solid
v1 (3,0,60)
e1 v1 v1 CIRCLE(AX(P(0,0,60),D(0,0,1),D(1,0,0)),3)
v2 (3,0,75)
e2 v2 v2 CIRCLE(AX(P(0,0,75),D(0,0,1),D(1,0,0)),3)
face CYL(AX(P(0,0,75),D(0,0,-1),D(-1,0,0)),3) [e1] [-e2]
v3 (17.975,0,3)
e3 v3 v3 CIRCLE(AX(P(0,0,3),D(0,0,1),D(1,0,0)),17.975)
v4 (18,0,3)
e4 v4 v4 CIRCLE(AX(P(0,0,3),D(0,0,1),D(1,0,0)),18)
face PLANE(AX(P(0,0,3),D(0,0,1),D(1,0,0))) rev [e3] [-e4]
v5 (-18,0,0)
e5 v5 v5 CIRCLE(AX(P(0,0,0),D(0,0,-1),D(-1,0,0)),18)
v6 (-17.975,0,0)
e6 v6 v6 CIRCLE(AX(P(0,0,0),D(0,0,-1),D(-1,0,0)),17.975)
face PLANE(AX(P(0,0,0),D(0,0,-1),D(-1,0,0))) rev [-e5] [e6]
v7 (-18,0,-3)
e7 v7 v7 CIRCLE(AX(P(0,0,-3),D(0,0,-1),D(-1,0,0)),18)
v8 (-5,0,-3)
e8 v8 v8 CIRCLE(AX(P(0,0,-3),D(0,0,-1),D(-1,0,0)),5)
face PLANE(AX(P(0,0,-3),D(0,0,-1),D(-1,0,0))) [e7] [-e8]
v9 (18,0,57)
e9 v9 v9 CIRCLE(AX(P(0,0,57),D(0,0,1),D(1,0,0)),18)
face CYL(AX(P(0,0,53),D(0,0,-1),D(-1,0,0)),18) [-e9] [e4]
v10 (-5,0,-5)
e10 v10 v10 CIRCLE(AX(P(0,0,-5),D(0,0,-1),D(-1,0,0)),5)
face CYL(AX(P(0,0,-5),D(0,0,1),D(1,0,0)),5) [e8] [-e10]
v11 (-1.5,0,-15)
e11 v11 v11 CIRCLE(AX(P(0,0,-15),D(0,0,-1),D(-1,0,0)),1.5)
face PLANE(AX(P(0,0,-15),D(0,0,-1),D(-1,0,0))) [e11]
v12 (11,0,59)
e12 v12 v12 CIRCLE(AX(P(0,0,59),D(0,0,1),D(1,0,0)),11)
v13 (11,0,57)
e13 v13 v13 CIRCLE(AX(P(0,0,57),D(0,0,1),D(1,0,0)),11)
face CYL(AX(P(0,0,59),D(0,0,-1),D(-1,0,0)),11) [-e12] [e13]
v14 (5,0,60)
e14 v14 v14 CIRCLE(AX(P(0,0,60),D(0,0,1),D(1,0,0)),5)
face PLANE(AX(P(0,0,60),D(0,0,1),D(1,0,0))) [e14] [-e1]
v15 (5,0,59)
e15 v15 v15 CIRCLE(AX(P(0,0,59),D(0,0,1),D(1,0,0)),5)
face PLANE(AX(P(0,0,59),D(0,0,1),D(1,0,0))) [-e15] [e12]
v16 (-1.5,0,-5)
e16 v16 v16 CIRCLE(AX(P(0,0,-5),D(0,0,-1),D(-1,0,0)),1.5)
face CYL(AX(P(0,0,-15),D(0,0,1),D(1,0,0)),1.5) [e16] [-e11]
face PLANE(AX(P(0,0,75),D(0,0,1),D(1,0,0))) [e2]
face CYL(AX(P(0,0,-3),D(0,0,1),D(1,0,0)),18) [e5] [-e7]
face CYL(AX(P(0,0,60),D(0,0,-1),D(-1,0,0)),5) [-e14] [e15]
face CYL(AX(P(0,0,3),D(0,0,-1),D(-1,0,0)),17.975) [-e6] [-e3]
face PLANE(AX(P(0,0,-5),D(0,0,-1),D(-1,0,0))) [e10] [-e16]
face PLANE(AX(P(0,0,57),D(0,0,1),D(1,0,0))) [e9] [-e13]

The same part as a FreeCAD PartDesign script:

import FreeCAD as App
import Part
import Sketcher

doc = App.newDocument("Part")
params = doc.addObject("Spreadsheet::Sheet", "Params")
for row, (alias, value) in enumerate([
    ("sketch1_diameter", "35.95 mm"),
    ("pad1_length", "3 mm"),
    ("sketch2_diameter", "36 mm"),
    ("pad2_length", "50 mm"),
    ("sketch3_diameter", "36 mm"),
    ("pad3_length", "4 mm"),
    ("sketch4_diameter", "22 mm"),
    ("pad4_length", "2 mm"),
    ("sketch5_diameter", "10 mm"),
    ("pad5_length", "1 mm"),
    ("sketch6_diameter", "6 mm"),
    ("pad6_length", "15 mm"),
    ("sketch7_diameter", "36 mm"),
    ("pad7_length", "3 mm"),
    ("sketch8_diameter", "10 mm"),
    ("pad8_length", "2 mm"),
    ("sketch9_diameter", "3 mm"),
    ("pad9_length", "10 mm"),
], start=1):
    params.set(f"A{row}", alias)
    params.set(f"B{row}", "=" + value)
    params.setAlias(f"B{row}", alias)

body = doc.addObject("PartDesign::Body", "Body")

sketch1 = body.newObject("Sketcher::SketchObject", "Sketch")
sketch1.AttachmentSupport = (doc.getObject("XY_Plane"), [""])
sketch1.MapMode = "FlatFace"
sketch1.addGeometry(Part.Circle(App.Vector(0, 0, 0), App.Vector(0, 0, 1), 18), False)
sketch1.addConstraint(Sketcher.Constraint("Coincident", 0, 3, -1, 1))
sketch1.addConstraint(Sketcher.Constraint("Diameter", 0, 35.95))
sketch1.setExpression("Constraints[1]", "Params.sketch1_diameter")
pad1 = body.newObject("PartDesign::Pad", "Pad")
pad1.Profile = sketch1
pad1.setExpression("Length", "Params.pad1_length")

sketch2 = body.newObject("Sketcher::SketchObject", "Sketch001")
sketch2.AttachmentSupport = (doc.getObject("XY_Plane"), [""])
sketch2.MapMode = "FlatFace"
sketch2.AttachmentOffset = App.Placement(App.Vector(0, 0, 3), App.Rotation())
sketch2.addGeometry(Part.Circle(App.Vector(0, 0, 0), App.Vector(0, 0, 1), 18), False)
sketch2.addConstraint(Sketcher.Constraint("Coincident", 0, 3, -1, 1))
sketch2.addConstraint(Sketcher.Constraint("Diameter", 0, 36.0))
sketch2.setExpression("Constraints[1]", "Params.sketch2_diameter")
pad2 = body.newObject("PartDesign::Pad", "Pad001")
pad2.Profile = sketch2
pad2.setExpression("Length", "Params.pad2_length")

sketch3 = body.newObject("Sketcher::SketchObject", "Sketch002")
sketch3.AttachmentSupport = (doc.getObject("XY_Plane"), [""])
sketch3.MapMode = "FlatFace"
sketch3.AttachmentOffset = App.Placement(App.Vector(0, 0, 53), App.Rotation())
sketch3.addGeometry(Part.Circle(App.Vector(0, 0, 0), App.Vector(0, 0, 1), 18), False)
sketch3.addConstraint(Sketcher.Constraint("Coincident", 0, 3, -1, 1))
sketch3.addConstraint(Sketcher.Constraint("Diameter", 0, 36.0))
sketch3.setExpression("Constraints[1]", "Params.sketch3_diameter")
pad3 = body.newObject("PartDesign::Pad", "Pad002")
pad3.Profile = sketch3
pad3.setExpression("Length", "Params.pad3_length")

sketch4 = body.newObject("Sketcher::SketchObject", "Sketch003")
sketch4.AttachmentSupport = (doc.getObject("XY_Plane"), [""])
sketch4.MapMode = "FlatFace"
sketch4.AttachmentOffset = App.Placement(App.Vector(0, 0, 57), App.Rotation())
sketch4.addGeometry(Part.Circle(App.Vector(0, 0, 0), App.Vector(0, 0, 1), 11), False)
sketch4.addConstraint(Sketcher.Constraint("Coincident", 0, 3, -1, 1))
sketch4.addConstraint(Sketcher.Constraint("Diameter", 0, 22.0))
sketch4.setExpression("Constraints[1]", "Params.sketch4_diameter")
pad4 = body.newObject("PartDesign::Pad", "Pad003")
pad4.Profile = sketch4
pad4.setExpression("Length", "Params.pad4_length")

sketch5 = body.newObject("Sketcher::SketchObject", "Sketch004")
sketch5.AttachmentSupport = (doc.getObject("XY_Plane"), [""])
sketch5.MapMode = "FlatFace"
sketch5.AttachmentOffset = App.Placement(App.Vector(0, 0, 59), App.Rotation())
sketch5.addGeometry(Part.Circle(App.Vector(0, 0, 0), App.Vector(0, 0, 1), 5), False)
sketch5.addConstraint(Sketcher.Constraint("Coincident", 0, 3, -1, 1))
sketch5.addConstraint(Sketcher.Constraint("Diameter", 0, 10.0))
sketch5.setExpression("Constraints[1]", "Params.sketch5_diameter")
pad5 = body.newObject("PartDesign::Pad", "Pad004")
pad5.Profile = sketch5
pad5.setExpression("Length", "Params.pad5_length")

sketch6 = body.newObject("Sketcher::SketchObject", "Sketch005")
sketch6.AttachmentSupport = (doc.getObject("XY_Plane"), [""])
sketch6.MapMode = "FlatFace"
sketch6.AttachmentOffset = App.Placement(App.Vector(0, 0, 60), App.Rotation())
sketch6.addGeometry(Part.Circle(App.Vector(0, 0, 0), App.Vector(0, 0, 1), 3), False)
sketch6.addConstraint(Sketcher.Constraint("Coincident", 0, 3, -1, 1))
sketch6.addConstraint(Sketcher.Constraint("Diameter", 0, 6.0))
sketch6.setExpression("Constraints[1]", "Params.sketch6_diameter")
pad6 = body.newObject("PartDesign::Pad", "Pad005")
pad6.Profile = sketch6
pad6.setExpression("Length", "Params.pad6_length")

sketch7 = body.newObject("Sketcher::SketchObject", "Sketch006")
sketch7.AttachmentSupport = (doc.getObject("XY_Plane"), [""])
sketch7.MapMode = "FlatFace"
sketch7.addGeometry(Part.Circle(App.Vector(0, 0, 0), App.Vector(0, 0, 1), 18), False)
sketch7.addConstraint(Sketcher.Constraint("Coincident", 0, 3, -1, 1))
sketch7.addConstraint(Sketcher.Constraint("Diameter", 0, 36.0))
sketch7.setExpression("Constraints[1]", "Params.sketch7_diameter")
pad7 = body.newObject("PartDesign::Pad", "Pad006")
pad7.Profile = sketch7
pad7.setExpression("Length", "Params.pad7_length")
pad7.Reversed = True

sketch8 = body.newObject("Sketcher::SketchObject", "Sketch007")
sketch8.AttachmentSupport = (doc.getObject("XY_Plane"), [""])
sketch8.MapMode = "FlatFace"
sketch8.AttachmentOffset = App.Placement(App.Vector(0, 0, -3), App.Rotation())
sketch8.addGeometry(Part.Circle(App.Vector(0, 0, 0), App.Vector(0, 0, 1), 5), False)
sketch8.addConstraint(Sketcher.Constraint("Coincident", 0, 3, -1, 1))
sketch8.addConstraint(Sketcher.Constraint("Diameter", 0, 10.0))
sketch8.setExpression("Constraints[1]", "Params.sketch8_diameter")
pad8 = body.newObject("PartDesign::Pad", "Pad007")
pad8.Profile = sketch8
pad8.setExpression("Length", "Params.pad8_length")
pad8.Reversed = True

sketch9 = body.newObject("Sketcher::SketchObject", "Sketch008")
sketch9.AttachmentSupport = (doc.getObject("XY_Plane"), [""])
sketch9.MapMode = "FlatFace"
sketch9.AttachmentOffset = App.Placement(App.Vector(0, 0, -5), App.Rotation())
sketch9.addGeometry(Part.Circle(App.Vector(0, 0, 0), App.Vector(0, 0, 1), 1.5), False)
sketch9.addConstraint(Sketcher.Constraint("Coincident", 0, 3, -1, 1))
sketch9.addConstraint(Sketcher.Constraint("Diameter", 0, 3.0))
sketch9.setExpression("Constraints[1]", "Params.sketch9_diameter")
pad9 = body.newObject("PartDesign::Pad", "Pad008")
pad9.Profile = sketch9
pad9.setExpression("Length", "Params.pad9_length")
pad9.Reversed = True

doc.recompute()
